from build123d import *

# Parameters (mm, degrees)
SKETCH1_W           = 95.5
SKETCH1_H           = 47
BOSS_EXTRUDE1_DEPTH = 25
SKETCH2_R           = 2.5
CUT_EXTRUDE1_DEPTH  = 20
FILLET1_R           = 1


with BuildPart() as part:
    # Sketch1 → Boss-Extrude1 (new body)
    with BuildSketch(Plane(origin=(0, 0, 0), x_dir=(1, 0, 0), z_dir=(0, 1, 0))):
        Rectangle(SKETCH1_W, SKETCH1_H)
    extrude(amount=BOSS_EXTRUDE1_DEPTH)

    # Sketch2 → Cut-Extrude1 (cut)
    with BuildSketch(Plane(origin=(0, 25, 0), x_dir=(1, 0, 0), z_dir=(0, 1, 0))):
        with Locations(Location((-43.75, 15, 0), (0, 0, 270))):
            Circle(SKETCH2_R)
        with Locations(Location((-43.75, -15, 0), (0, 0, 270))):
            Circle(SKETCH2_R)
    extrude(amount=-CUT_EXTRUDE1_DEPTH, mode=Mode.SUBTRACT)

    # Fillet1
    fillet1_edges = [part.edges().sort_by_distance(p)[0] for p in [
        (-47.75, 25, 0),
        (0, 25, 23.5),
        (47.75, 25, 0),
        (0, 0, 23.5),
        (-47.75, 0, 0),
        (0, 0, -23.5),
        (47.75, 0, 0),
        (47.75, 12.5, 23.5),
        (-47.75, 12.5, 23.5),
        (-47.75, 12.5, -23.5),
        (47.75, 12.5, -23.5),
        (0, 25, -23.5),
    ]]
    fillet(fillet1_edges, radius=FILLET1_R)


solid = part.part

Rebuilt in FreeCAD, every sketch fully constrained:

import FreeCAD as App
import Part
import Sketcher
from FreeCAD import Vector


def edges_at(feature, points):
    """Names of the edges that pass closest to the given points."""
    edges = feature.Shape.Edges
    near = lambda p: min(range(len(edges)), key=lambda i: edges[i].distToShape(Part.Vertex(*p))[0])
    return sorted({f"Edge{near(p) + 1}" for p in points})

doc = App.newDocument("Part")
params = doc.addObject("Spreadsheet::Sheet", "Params")
for row, (alias, value) in enumerate([
    ("sketch1_height", "47 mm"),
    ("sketch1_width", "95.5 mm"),
    ("pad1_length", "25 mm"),
    ("sketch2_diameter", "5 mm"),
    ("pocket1_length", "20 mm"),
    ("fillet_radius", "1 mm"),
], start=1):
    params.set(f"A{row}", alias)
    params.set(f"B{row}", "=" + value)
    params.setAlias(f"B{row}", alias)

body = doc.addObject("PartDesign::Body", "Body")

# Sketch on XZ plane
sketch1 = body.newObject("Sketcher::SketchObject", "Sketch")
sketch1.AttachmentSupport = (doc.getObject("XZ_Plane"), [""])
sketch1.MapMode = "FlatFace"
sketch1.addGeometry([
    Part.LineSegment(Vector(-47.75, -23.5, 0), Vector(-47.75, 23.5, 0)),
    Part.LineSegment(Vector(-47.75, 23.5, 0), Vector(47.75, 23.5, 0)),
    Part.LineSegment(Vector(47.75, 23.5, 0), Vector(47.75, -23.5, 0)),
    Part.LineSegment(Vector(47.75, -23.5, 0), Vector(-47.75, -23.5, 0)),
], False)
sketch1.addConstraint([
    Sketcher.Constraint("Coincident", 0, 2, 1, 1),
    Sketcher.Constraint("Coincident", 1, 2, 2, 1),
    Sketcher.Constraint("Coincident", 2, 2, 3, 1),
    Sketcher.Constraint("Coincident", 3, 2, 0, 1),
    Sketcher.Constraint("Vertical", 0),
    Sketcher.Constraint("Horizontal", 1),
    Sketcher.Constraint("Vertical", 2),
    Sketcher.Constraint("Horizontal", 3),
    Sketcher.Constraint("Symmetric", 0, 2, 2, 2, -1, 1),
    Sketcher.Constraint("DistanceY", 0, 1, 0, 2, 47.0),
    Sketcher.Constraint("DistanceX", 1, 1, 1, 2, 95.5),
])
sketch1.setExpression("Constraints[9]", "Params.sketch1_height")
sketch1.setExpression("Constraints[10]", "Params.sketch1_width")
pad1 = body.newObject("PartDesign::Pad", "Pad")
pad1.Profile = sketch1
pad1.setExpression("Length", "Params.pad1_length")
pad1.Reversed = True

# Sketch on XZ plane
sketch2 = body.newObject("Sketcher::SketchObject", "Sketch001")
sketch2.AttachmentSupport = (doc.getObject("XZ_Plane"), [""])
sketch2.MapMode = "FlatFace"
sketch2.AttachmentOffset = App.Placement(Vector(0, 0, -25), App.Rotation())
sketch2.addGeometry([
    Part.Circle(Vector(-43.75, -15, 0), Vector(0, 0, 1), 2.5),
    Part.Circle(Vector(-43.75, 15, 0), Vector(0, 0, 1), 2.5),
], False)
sketch2.addConstraint([
    Sketcher.Constraint("Equal", 0, 1),
    Sketcher.Constraint("Symmetric", 0, 3, 1, 3, -1),
    Sketcher.Constraint("Diameter", 0, 5.0),
    Sketcher.Constraint("DistanceY", 0, 3, -1, 1, 15.0),
    Sketcher.Constraint("DistanceX", 0, 3, -1, 1, 43.75),
])
sketch2.setExpression("Constraints[2]", "Params.sketch2_diameter")
pocket1 = body.newObject("PartDesign::Pocket", "Pocket")
pocket1.Profile = sketch2
pocket1.setExpression("Length", "Params.pocket1_length")
pocket1.Reversed = True
doc.recompute()

fillet = body.newObject("PartDesign::Fillet", "Fillet")
fillet.Base = (pocket1, edges_at(pocket1, [
    (-47.75, 25, 0),
    (0, 25, 23.5),
    (47.75, 25, 0),
    (0, 0, 23.5),
    (-47.75, 0, 0),
    (0, 0, -23.5),
    (47.75, 0, 0),
    (47.75, 12.5, 23.5),
    (-47.75, 12.5, 23.5),
    (-47.75, 12.5, -23.5),
    (47.75, 12.5, -23.5),
    (0, 25, -23.5),
]))
fillet.setExpression("Radius", "Params.fillet_radius")

doc.recompute()
